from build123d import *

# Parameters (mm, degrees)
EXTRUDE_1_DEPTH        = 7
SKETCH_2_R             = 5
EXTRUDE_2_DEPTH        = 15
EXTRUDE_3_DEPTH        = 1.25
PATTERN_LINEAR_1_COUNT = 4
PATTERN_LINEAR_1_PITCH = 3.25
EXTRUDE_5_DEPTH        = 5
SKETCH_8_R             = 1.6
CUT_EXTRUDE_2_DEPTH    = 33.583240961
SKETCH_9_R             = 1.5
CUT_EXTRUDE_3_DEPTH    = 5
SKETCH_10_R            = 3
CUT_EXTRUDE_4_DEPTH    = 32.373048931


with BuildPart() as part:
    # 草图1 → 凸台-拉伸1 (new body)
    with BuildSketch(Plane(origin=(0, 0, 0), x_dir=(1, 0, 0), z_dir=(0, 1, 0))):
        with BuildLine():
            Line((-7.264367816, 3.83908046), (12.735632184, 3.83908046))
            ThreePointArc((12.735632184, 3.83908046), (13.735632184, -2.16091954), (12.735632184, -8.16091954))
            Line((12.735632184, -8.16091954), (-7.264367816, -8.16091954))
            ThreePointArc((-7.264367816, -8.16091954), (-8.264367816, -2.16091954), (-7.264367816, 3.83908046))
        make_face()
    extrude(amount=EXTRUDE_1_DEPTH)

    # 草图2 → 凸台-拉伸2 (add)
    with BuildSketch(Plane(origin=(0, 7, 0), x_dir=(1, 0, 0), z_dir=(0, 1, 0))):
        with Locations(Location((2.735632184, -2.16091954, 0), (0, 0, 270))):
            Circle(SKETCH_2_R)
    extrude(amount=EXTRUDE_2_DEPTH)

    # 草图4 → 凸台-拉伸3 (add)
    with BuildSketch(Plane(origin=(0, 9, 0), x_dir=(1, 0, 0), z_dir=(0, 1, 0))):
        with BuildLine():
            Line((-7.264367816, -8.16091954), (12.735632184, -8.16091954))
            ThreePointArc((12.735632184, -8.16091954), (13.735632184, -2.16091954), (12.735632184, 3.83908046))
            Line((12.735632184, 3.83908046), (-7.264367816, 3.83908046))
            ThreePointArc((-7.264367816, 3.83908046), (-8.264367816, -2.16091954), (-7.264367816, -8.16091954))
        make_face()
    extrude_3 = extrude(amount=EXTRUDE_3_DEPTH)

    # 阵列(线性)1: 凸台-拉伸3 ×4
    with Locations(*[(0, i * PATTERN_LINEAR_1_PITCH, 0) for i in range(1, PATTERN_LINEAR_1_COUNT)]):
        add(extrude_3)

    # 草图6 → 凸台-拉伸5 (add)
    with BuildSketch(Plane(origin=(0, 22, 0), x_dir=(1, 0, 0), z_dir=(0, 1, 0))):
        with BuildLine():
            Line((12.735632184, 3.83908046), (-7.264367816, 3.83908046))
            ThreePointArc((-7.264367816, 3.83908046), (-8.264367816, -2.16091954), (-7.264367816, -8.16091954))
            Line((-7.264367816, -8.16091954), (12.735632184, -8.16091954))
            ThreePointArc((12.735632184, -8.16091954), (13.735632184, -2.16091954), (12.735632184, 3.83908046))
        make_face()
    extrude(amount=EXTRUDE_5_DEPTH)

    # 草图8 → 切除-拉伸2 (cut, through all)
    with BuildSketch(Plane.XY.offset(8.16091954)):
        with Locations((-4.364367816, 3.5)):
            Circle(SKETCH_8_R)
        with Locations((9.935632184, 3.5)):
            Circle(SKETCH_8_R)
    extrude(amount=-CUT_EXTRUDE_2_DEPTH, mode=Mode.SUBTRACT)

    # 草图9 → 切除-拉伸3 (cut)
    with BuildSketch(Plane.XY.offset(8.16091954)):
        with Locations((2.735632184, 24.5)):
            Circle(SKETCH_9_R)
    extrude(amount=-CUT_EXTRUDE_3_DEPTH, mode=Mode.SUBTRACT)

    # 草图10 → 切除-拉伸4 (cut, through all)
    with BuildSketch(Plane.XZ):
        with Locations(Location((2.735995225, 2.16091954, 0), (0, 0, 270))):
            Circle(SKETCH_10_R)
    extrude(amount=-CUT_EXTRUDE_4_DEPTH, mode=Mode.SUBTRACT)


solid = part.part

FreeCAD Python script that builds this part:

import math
import FreeCAD as App
import Part
import Sketcher
from FreeCAD import Vector
Q = App.Units.Quantity

doc = App.newDocument("Part")
body = doc.addObject("PartDesign::Body", "Body")

# Sketch on XZ plane
sketch1 = body.newObject("Sketcher::SketchObject", "Sketch")
sketch1.AttachmentSupport = (doc.getObject("XZ_Plane"), [""])
sketch1.MapMode = "FlatFace"
sketch1.addGeometry([
    Part.LineSegment(Vector(13, -4, 0), Vector(-7, -4, 0)),
    Part.ArcOfCircle(Part.Circle(Vector(10, 2, 0), Vector(0, 0, 1), 18), math.radians(161), math.radians(199)),
    Part.LineSegment(Vector(-7, 8, 0), Vector(13, 8, 0)),
    Part.ArcOfCircle(Part.Circle(Vector(-5, 2, 0), Vector(0, 0, 1), 18), math.radians(-19), math.radians(19)),
], False)
sketch1.addConstraint([
    Sketcher.Constraint("Coincident", 0, 2, 1, 2),
    Sketcher.Constraint("Coincident", 1, 1, 2, 1),
    Sketcher.Constraint("Coincident", 2, 2, 3, 2),
    Sketcher.Constraint("Coincident", 3, 1, 0, 1),
    Sketcher.Constraint("Horizontal", 0),
    Sketcher.Constraint("Horizontal", 2),
    Sketcher.Constraint("Equal", 1, 3),
    Sketcher.Constraint("Horizontal", 1, 3, 3, 3),
    Sketcher.Constraint("Vertical", 0, 2, 1, 1),
    Sketcher.Constraint("Radius", 1, Q("18.5 mm")),
    Sketcher.Constraint("DistanceX", 0, 2, 0, 1, Q("20 mm")),
    Sketcher.Constraint("DistanceX", 3, 3, 1, 3, Q("15 mm")),
    Sketcher.Constraint("DistanceY", -1, 1, 1, 3, Q("2.16092 mm")),
    Sketcher.Constraint("DistanceX", -1, 1, 1, 3, Q("10.235632 mm")),
])
pad1 = body.newObject("PartDesign::Pad", "Pad")
pad1.Profile = sketch1
pad1.Length = 7
pad1.Reversed = True

# Sketch on XZ plane
sketch2 = body.newObject("Sketcher::SketchObject", "Sketch001")
sketch2.AttachmentSupport = (doc.getObject("XZ_Plane"), [""])
sketch2.MapMode = "FlatFace"
sketch2.AttachmentOffset = App.Placement(Vector(0, 0, -7), App.Rotation())
sketch2.addGeometry(Part.Circle(Vector(3, 2, 0), Vector(0, 0, 1), 5), False)
sketch2.addConstraint([
    Sketcher.Constraint("Diameter", 0, Q("10 mm")),
    Sketcher.Constraint("DistanceY", -1, 1, 0, 3, Q("2.16092 mm")),
    Sketcher.Constraint("DistanceX", -1, 1, 0, 3, Q("2.735632 mm")),
])
pad2 = body.newObject("PartDesign::Pad", "Pad001")
pad2.Profile = sketch2
pad2.Length = 15
pad2.Reversed = True

# Sketch on XZ plane
sketch3 = body.newObject("Sketcher::SketchObject", "Sketch002")
sketch3.AttachmentSupport = (doc.getObject("XZ_Plane"), [""])
sketch3.MapMode = "FlatFace"
sketch3.AttachmentOffset = App.Placement(Vector(0, 0, -9), App.Rotation())
sketch3.addGeometry([
    Part.LineSegment(Vector(-7, 8, 0), Vector(13, 8, 0)),
    Part.ArcOfCircle(Part.Circle(Vector(-5, 2, 0), Vector(0, 0, 1), 18), math.radians(-19), math.radians(19)),
    Part.LineSegment(Vector(13, -4, 0), Vector(-7, -4, 0)),
    Part.ArcOfCircle(Part.Circle(Vector(10, 2, 0), Vector(0, 0, 1), 18), math.radians(161), math.radians(199)),
], False)
sketch3.addConstraint([
    Sketcher.Constraint("Coincident", 0, 2, 1, 2),
    Sketcher.Constraint("Coincident", 1, 1, 2, 1),
    Sketcher.Constraint("Coincident", 2, 2, 3, 2),
    Sketcher.Constraint("Coincident", 3, 1, 0, 1),
    Sketcher.Constraint("Horizontal", 0),
    Sketcher.Constraint("Horizontal", 2),
    Sketcher.Constraint("Equal", 1, 3),
    Sketcher.Constraint("Horizontal", 1, 3, 3, 3),
    Sketcher.Constraint("Vertical", 0, 2, 1, 1),
    Sketcher.Constraint("Radius", 1, Q("18.5 mm")),
    Sketcher.Constraint("DistanceX", 0, 1, 0, 2, Q("20 mm")),
    Sketcher.Constraint("DistanceX", 1, 3, 3, 3, Q("15 mm")),
    Sketcher.Constraint("DistanceY", -1, 1, 1, 3, Q("2.16092 mm")),
    Sketcher.Constraint("DistanceX", 1, 3, -1, 1, Q("4.764368 mm")),
])
pad3 = body.newObject("PartDesign::Pad", "Pad002")
pad3.Profile = sketch3
pad3.Length = 1.25
pad3.Reversed = True
doc.recompute()

linearpattern = body.newObject("PartDesign::LinearPattern", "LinearPattern")
linearpattern.Originals = [pad3]
linearpattern.Direction = (doc.getObject("Y_Axis"), [""])
linearpattern.Mode = "offset"
linearpattern.Offset = 3.25
linearpattern.Occurrences = 4
body.Tip = linearpattern

# Sketch on XZ plane
sketch4 = body.newObject("Sketcher::SketchObject", "Sketch003")
sketch4.AttachmentSupport = (doc.getObject("XZ_Plane"), [""])
sketch4.MapMode = "FlatFace"
sketch4.AttachmentOffset = App.Placement(Vector(0, 0, -22), App.Rotation())
sketch4.addGeometry([
    Part.LineSegment(Vector(13, -4, 0), Vector(-7, -4, 0)),
    Part.ArcOfCircle(Part.Circle(Vector(10, 2, 0), Vector(0, 0, 1), 18), math.radians(161), math.radians(199)),
    Part.LineSegment(Vector(-7, 8, 0), Vector(13, 8, 0)),
    Part.ArcOfCircle(Part.Circle(Vector(-5, 2, 0), Vector(0, 0, 1), 18), math.radians(-19), math.radians(19)),
], False)
sketch4.addConstraint([
    Sketcher.Constraint("Coincident", 0, 2, 1, 2),
    Sketcher.Constraint("Coincident", 1, 1, 2, 1),
    Sketcher.Constraint("Coincident", 2, 2, 3, 2),
    Sketcher.Constraint("Coincident", 3, 1, 0, 1),
    Sketcher.Constraint("Horizontal", 0),
    Sketcher.Constraint("Horizontal", 2),
    Sketcher.Constraint("Equal", 1, 3),
    Sketcher.Constraint("Horizontal", 1, 3, 3, 3),
    Sketcher.Constraint("Vertical", 0, 2, 1, 1),
    Sketcher.Constraint("Radius", 1, Q("18.5 mm")),
    Sketcher.Constraint("DistanceX", 0, 2, 0, 1, Q("20 mm")),
    Sketcher.Constraint("DistanceX", 3, 3, 1, 3, Q("15 mm")),
    Sketcher.Constraint("DistanceY", -1, 1, 1, 3, Q("2.16092 mm")),
    Sketcher.Constraint("DistanceX", -1, 1, 1, 3, Q("10.235632 mm")),
])
pad4 = body.newObject("PartDesign::Pad", "Pad003")
pad4.Profile = sketch4
pad4.Length = 5
pad4.Reversed = True

# Sketch on XY plane
sketch5 = body.newObject("Sketcher::SketchObject", "Sketch004")
sketch5.AttachmentSupport = (doc.getObject("XY_Plane"), [""])
sketch5.MapMode = "FlatFace"
sketch5.AttachmentOffset = App.Placement(Vector(0, 0, 8.16092), App.Rotation())
sketch5.addGeometry([
    Part.Circle(Vector(-4.4, 3.5, 0), Vector(0, 0, 1), 1.6),
    Part.Circle(Vector(9.9, 3.5, 0), Vector(0, 0, 1), 1.6),
], False)
sketch5.addConstraint([
    Sketcher.Constraint("Equal", 0, 1),
    Sketcher.Constraint("Horizontal", 0, 3, 1, 3),
    Sketcher.Constraint("Diameter", 0, Q("3.2 mm")),
    Sketcher.Constraint("DistanceY", -1, 1, 0, 3, Q("3.5 mm")),
    Sketcher.Constraint("DistanceX", 0, 3, 1, 3, Q("14.3 mm")),
    Sketcher.Constraint("DistanceX", 0, 3, -1, 1, Q("4.364368 mm")),
])
pocket1 = body.newObject("PartDesign::Pocket", "Pocket")
pocket1.Profile = sketch5
pocket1.Type = "ThroughAll"

# Sketch on XY plane
sketch6 = body.newObject("Sketcher::SketchObject", "Sketch005")
sketch6.AttachmentSupport = (doc.getObject("XY_Plane"), [""])
sketch6.MapMode = "FlatFace"
sketch6.AttachmentOffset = App.Placement(Vector(0, 0, 8.16092), App.Rotation())
sketch6.addGeometry(Part.Circle(Vector(2.7, 24.5, 0), Vector(0, 0, 1), 1.5), False)
sketch6.addConstraint([
    Sketcher.Constraint("Diameter", 0, Q("3 mm")),
    Sketcher.Constraint("DistanceY", -1, 1, 0, 3, Q("24.5 mm")),
    Sketcher.Constraint("DistanceX", -1, 1, 0, 3, Q("2.735632 mm")),
])
pocket2 = body.newObject("PartDesign::Pocket", "Pocket001")
pocket2.Profile = sketch6
pocket2.Length = 5

# Sketch on XZ plane
sketch7 = body.newObject("Sketcher::SketchObject", "Sketch006")
sketch7.AttachmentSupport = (doc.getObject("XZ_Plane"), [""])
sketch7.MapMode = "FlatFace"
sketch7.addGeometry(Part.Circle(Vector(2.7, 2.2, 0), Vector(0, 0, 1), 3), False)
sketch7.addConstraint([
    Sketcher.Constraint("Diameter", 0, Q("6 mm")),
    Sketcher.Constraint("DistanceY", -1, 1, 0, 3, Q("2.16092 mm")),
    Sketcher.Constraint("DistanceX", -1, 1, 0, 3, Q("2.735995 mm")),
])
pocket3 = body.newObject("PartDesign::Pocket", "Pocket002")
pocket3.Profile = sketch7
pocket3.Type = "ThroughAll"

doc.recompute()
